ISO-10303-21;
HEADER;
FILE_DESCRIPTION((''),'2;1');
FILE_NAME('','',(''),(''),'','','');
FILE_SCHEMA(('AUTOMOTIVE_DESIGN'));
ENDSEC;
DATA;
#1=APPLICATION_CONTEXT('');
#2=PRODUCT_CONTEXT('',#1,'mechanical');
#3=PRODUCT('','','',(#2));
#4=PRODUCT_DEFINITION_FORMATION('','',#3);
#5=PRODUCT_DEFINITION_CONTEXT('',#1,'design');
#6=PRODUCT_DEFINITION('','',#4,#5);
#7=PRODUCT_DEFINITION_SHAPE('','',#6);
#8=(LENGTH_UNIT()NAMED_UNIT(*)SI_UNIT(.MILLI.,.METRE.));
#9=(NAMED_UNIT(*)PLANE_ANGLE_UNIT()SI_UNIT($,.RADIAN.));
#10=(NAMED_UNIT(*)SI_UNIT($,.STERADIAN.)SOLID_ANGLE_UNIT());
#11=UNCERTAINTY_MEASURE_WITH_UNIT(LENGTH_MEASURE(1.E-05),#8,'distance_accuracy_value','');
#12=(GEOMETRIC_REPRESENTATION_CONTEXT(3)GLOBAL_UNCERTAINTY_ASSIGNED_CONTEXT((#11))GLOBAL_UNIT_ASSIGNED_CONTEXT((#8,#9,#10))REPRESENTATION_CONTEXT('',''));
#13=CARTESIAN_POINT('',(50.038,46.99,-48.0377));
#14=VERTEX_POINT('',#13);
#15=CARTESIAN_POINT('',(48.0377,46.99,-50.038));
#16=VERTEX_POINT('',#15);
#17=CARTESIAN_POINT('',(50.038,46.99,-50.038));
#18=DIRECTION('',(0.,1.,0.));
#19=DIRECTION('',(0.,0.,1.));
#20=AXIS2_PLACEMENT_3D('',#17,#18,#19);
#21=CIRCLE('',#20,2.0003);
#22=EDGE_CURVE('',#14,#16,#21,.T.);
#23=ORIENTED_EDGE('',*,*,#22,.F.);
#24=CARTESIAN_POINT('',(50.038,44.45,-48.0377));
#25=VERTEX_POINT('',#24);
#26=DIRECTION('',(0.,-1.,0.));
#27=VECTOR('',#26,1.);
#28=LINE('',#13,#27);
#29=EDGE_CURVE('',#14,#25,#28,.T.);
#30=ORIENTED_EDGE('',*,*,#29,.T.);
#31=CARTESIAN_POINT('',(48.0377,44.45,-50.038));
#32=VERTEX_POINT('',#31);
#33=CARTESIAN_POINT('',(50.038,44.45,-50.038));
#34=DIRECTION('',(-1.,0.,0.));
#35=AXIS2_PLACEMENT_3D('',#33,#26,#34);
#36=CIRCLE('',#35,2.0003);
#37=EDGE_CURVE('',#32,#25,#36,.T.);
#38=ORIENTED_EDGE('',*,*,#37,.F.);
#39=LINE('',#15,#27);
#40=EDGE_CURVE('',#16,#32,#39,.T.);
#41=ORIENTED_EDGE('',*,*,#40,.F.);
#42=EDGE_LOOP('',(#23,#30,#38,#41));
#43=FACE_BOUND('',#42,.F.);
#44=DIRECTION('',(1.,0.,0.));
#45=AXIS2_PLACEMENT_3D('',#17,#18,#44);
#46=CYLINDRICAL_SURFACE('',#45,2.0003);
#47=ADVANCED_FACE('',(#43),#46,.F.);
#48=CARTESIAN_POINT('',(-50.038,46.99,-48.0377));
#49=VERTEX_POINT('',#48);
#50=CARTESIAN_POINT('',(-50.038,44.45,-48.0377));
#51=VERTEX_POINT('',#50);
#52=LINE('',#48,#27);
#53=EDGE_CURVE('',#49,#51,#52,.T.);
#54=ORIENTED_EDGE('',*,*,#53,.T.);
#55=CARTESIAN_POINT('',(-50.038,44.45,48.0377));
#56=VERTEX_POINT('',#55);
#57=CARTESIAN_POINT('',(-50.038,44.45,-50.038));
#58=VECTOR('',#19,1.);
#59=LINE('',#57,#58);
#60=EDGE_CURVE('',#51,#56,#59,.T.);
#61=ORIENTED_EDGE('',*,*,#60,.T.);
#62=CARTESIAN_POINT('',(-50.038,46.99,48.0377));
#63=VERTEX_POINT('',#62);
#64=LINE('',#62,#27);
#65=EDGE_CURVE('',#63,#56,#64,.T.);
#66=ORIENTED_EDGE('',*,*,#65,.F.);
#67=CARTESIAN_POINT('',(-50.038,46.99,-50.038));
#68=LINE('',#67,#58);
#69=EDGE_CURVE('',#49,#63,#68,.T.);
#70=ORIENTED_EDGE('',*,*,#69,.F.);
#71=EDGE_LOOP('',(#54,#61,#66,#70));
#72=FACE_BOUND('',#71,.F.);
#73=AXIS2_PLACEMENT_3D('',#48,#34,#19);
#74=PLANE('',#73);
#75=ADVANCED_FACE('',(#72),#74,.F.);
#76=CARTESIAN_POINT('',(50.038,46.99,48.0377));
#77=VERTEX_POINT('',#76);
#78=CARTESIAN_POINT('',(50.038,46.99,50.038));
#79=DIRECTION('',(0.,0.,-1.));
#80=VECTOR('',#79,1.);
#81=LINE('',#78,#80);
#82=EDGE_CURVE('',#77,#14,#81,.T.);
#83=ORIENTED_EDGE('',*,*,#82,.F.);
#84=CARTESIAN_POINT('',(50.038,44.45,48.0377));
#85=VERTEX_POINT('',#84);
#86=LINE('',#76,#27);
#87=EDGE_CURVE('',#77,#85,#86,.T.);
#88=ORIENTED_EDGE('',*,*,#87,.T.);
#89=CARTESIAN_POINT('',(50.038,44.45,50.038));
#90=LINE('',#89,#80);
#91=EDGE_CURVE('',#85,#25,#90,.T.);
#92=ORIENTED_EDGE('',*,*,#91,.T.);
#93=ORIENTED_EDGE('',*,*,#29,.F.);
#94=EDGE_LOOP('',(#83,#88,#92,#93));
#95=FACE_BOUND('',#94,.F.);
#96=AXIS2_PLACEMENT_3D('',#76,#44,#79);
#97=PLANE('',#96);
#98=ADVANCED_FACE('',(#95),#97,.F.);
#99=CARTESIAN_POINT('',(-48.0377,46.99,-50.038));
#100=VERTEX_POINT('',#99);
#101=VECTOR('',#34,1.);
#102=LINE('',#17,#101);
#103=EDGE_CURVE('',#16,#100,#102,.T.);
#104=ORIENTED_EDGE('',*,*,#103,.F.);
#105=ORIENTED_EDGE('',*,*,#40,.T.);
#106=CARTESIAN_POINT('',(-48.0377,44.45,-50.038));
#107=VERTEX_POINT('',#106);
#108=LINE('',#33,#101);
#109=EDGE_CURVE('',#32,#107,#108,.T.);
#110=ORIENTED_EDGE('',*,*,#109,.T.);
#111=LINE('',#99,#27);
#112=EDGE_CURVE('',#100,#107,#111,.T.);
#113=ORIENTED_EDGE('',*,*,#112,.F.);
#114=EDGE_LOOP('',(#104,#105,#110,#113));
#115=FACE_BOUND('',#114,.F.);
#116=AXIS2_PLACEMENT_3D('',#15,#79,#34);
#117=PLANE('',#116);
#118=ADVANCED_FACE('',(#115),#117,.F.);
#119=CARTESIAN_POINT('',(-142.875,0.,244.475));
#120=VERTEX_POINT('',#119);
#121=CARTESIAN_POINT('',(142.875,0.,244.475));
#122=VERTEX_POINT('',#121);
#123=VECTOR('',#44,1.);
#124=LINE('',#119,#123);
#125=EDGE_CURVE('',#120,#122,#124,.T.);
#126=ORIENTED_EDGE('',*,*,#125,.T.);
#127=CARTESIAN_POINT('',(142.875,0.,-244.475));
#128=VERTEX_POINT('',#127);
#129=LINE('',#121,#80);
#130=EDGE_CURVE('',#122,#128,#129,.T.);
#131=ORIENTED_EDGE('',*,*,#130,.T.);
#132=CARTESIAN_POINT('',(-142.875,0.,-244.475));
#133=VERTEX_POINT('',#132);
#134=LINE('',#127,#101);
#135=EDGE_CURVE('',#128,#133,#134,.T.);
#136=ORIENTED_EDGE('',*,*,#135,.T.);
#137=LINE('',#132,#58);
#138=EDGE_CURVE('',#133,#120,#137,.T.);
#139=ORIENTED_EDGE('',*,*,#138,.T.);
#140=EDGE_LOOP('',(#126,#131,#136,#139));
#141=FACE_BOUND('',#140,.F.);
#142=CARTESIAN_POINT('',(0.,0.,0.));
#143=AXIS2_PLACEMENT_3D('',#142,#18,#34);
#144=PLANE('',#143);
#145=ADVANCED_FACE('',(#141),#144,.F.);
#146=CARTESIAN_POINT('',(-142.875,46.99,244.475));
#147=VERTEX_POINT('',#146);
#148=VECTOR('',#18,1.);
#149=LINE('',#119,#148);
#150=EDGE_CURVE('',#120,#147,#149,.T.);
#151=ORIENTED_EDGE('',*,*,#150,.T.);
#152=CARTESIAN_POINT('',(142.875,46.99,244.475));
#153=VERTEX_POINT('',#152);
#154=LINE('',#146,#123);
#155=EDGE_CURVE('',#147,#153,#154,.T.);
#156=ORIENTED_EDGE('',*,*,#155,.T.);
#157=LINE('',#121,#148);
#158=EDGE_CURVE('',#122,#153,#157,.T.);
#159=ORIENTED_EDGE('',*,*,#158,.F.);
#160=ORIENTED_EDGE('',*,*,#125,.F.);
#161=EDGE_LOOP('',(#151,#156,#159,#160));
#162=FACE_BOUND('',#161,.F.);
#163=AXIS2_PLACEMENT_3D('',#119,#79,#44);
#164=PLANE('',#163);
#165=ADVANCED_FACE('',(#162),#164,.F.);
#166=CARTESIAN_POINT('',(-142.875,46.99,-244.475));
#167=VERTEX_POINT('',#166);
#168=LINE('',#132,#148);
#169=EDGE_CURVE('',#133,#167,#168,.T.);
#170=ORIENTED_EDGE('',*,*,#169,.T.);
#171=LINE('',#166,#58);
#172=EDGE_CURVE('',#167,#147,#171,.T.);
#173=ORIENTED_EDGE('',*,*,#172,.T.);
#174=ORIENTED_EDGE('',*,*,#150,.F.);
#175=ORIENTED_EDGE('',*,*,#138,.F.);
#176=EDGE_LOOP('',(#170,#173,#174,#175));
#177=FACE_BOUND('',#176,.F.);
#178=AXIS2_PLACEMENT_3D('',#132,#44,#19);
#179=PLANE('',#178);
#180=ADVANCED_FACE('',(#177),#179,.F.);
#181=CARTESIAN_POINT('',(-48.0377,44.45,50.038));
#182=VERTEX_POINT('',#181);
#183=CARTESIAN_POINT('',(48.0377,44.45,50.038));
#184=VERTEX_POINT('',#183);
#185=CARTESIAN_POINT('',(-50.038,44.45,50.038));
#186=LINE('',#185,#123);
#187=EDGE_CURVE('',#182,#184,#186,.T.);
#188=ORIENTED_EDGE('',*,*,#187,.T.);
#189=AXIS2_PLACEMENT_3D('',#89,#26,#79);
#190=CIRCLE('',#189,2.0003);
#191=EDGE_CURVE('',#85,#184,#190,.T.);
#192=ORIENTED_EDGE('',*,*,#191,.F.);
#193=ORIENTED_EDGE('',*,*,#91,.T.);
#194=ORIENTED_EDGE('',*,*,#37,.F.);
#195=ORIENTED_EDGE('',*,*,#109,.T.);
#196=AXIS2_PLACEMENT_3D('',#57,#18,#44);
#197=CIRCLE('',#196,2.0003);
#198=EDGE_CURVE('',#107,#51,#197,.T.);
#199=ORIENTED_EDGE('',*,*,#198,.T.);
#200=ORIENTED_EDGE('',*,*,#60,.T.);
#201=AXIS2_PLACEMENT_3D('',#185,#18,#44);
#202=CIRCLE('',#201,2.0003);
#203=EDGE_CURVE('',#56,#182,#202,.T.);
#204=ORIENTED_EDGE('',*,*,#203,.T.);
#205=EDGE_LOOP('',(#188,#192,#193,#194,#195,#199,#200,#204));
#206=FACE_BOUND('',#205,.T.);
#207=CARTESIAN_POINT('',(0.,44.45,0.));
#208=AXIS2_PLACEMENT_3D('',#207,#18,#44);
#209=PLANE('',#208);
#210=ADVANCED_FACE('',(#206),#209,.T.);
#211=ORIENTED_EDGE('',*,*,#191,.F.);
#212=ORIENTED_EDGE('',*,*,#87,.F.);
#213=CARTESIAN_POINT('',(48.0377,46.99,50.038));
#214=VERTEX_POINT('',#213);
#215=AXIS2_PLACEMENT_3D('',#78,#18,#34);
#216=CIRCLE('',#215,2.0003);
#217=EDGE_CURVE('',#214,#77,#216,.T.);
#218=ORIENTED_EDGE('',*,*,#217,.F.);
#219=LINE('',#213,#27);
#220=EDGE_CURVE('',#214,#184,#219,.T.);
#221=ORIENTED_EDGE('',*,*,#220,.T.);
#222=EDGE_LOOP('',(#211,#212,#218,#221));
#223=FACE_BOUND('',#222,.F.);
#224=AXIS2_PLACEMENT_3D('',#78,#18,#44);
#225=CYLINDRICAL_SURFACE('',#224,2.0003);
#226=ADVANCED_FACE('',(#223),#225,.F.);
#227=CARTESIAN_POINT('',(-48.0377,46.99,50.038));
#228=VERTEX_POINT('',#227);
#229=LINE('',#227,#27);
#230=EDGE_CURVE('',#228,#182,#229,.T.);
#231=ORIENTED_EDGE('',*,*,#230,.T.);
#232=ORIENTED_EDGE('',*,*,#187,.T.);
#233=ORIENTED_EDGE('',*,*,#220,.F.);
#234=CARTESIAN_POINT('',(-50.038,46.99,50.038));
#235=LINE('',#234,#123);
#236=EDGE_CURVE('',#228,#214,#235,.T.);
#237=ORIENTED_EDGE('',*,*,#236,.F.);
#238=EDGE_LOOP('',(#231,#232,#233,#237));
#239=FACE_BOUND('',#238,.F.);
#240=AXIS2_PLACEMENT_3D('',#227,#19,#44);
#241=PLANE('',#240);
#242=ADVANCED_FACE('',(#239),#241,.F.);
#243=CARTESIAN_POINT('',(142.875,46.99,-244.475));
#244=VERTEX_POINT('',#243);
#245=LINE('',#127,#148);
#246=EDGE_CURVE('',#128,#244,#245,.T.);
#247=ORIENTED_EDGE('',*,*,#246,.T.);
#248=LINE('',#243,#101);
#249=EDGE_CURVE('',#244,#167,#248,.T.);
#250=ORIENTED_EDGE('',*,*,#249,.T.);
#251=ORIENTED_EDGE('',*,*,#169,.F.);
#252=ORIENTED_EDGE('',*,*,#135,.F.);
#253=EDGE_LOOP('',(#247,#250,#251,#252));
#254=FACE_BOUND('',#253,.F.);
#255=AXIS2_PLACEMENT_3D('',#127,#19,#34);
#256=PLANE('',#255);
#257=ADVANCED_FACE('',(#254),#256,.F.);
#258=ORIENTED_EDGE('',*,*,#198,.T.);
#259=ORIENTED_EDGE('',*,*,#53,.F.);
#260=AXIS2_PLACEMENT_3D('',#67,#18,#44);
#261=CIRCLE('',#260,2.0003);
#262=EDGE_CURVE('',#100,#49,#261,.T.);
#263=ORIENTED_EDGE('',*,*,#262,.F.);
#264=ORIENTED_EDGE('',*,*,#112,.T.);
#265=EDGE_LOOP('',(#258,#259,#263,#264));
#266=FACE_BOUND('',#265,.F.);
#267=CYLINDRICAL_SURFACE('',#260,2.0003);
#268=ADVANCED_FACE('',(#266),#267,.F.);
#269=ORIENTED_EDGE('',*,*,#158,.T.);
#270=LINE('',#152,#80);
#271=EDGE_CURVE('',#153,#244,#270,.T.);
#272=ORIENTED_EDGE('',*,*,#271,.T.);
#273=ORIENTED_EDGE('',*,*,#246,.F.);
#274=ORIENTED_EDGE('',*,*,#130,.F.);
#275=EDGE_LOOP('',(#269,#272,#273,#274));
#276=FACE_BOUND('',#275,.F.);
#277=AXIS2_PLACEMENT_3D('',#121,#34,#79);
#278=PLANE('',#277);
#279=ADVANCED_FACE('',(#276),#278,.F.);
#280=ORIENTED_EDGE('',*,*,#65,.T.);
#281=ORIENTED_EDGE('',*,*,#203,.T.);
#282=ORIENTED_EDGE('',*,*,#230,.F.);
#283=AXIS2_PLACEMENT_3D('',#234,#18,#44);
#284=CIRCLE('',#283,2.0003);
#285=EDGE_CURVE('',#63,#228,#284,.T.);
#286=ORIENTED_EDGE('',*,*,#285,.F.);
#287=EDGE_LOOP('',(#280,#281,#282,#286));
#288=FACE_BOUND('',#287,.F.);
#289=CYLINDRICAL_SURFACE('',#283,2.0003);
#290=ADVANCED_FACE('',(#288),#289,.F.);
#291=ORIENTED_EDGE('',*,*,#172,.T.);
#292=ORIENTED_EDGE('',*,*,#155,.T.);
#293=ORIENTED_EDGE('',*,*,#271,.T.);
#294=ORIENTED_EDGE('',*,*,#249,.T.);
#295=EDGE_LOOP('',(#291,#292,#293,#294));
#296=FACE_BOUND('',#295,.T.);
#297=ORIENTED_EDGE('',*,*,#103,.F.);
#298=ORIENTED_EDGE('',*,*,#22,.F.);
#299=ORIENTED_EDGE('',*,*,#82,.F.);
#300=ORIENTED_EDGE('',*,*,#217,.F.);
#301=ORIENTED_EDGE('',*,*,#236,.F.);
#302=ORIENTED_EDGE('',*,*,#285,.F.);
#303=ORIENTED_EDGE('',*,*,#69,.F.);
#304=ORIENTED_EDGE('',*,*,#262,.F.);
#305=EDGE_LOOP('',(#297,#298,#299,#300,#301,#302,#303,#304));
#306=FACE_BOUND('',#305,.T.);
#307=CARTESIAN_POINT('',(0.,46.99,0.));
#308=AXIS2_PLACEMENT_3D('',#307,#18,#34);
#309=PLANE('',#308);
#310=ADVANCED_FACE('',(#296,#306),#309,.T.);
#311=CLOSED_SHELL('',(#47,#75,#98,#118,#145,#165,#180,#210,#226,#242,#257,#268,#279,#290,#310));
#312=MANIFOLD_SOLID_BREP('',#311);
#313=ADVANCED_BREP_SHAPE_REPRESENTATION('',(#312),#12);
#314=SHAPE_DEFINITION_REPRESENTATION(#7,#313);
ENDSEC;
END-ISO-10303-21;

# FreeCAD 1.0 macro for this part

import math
import FreeCAD as App
import Part
import Sketcher
from FreeCAD import Vector
Q = App.Units.Quantity


def add_polygon(sketch, points):
    """Adds a closed chain of lines whose ends are joined by coincident constraints."""
    first, n = sketch.GeometryCount, len(points)
    for a, b in zip(points, points[1:] + points[:1]):
        sketch.addGeometry(Part.LineSegment(App.Vector(*a, 0), App.Vector(*b, 0)), False)
    for i in range(n):
        sketch.addConstraint(Sketcher.Constraint("Coincident", first + i, 2, first + (i + 1) % n, 1))

doc = App.newDocument("Part")
params = doc.addObject("Spreadsheet::Sheet", "Params")
for row, (alias, value) in enumerate([
    ("sketch1_width", "11.25 in"),
    ("sketch1_height", "19.25 in"),
    ("pad1_length", "1.85 in"),
    ("pocket1_length", "0.1 in"),
], start=1):
    params.set(f"A{row}", alias)
    params.set(f"B{row}", "=" + value)
    params.setAlias(f"B{row}", alias)

body = doc.addObject("PartDesign::Body", "Body")

sketch1 = body.newObject("Sketcher::SketchObject", "Sketch")
sketch1.AttachmentSupport = (doc.getObject("XZ_Plane"), [""])
sketch1.MapMode = "FlatFace"
add_polygon(sketch1, [(-143, -244), (-143, 244), (143, 244), (143, -244)])
sketch1.addConstraint([
    Sketcher.Constraint("Vertical", 0),
    Sketcher.Constraint("Horizontal", 1),
    Sketcher.Constraint("Vertical", 2),
    Sketcher.Constraint("Horizontal", 3),
    Sketcher.Constraint("Symmetric", 0, 2, 2, 2, -1, 1),
    Sketcher.Constraint("DistanceX", 1, 1, 1, 2, Q("11.25 in")),
    Sketcher.Constraint("DistanceY", 0, 1, 0, 2, Q("19.25 in")),
])
sketch1.setExpression("Constraints[9]", "Params.sketch1_width")
sketch1.setExpression("Constraints[10]", "Params.sketch1_height")
pad1 = body.newObject("PartDesign::Pad", "Pad")
pad1.Profile = sketch1
pad1.setExpression("Length", "Params.pad1_length")
pad1.Reversed = True

sketch2 = body.newObject("Sketcher::SketchObject", "Sketch001")
sketch2.AttachmentSupport = (doc.getObject("XZ_Plane"), [""])
sketch2.MapMode = "FlatFace"
sketch2.AttachmentOffset = App.Placement(Vector(0, 0, -1.85 * 25.4), App.Rotation())
sketch2.addGeometry([
    Part.ArcOfCircle(Part.Circle(Vector(-50, 50, 0), Vector(0, 0, 1), 2), math.radians(0), math.radians(270)),
    Part.LineSegment(Vector(-48, 50, 0), Vector(48, 50, 0)),
    Part.ArcOfCircle(Part.Circle(Vector(50, 50, 0), Vector(0, 0, 1), 2), math.radians(-90), math.radians(180)),
    Part.LineSegment(Vector(50, 48, 0), Vector(50, -48, 0)),
    Part.ArcOfCircle(Part.Circle(Vector(50, -50, 0), Vector(0, 0, 1), 2), math.radians(180), math.radians(450)),
    Part.LineSegment(Vector(48, -50, 0), Vector(-48, -50, 0)),
    Part.ArcOfCircle(Part.Circle(Vector(-50, -50, 0), Vector(0, 0, 1), 2), math.radians(90), math.radians(360)),
    Part.LineSegment(Vector(-50, -48, 0), Vector(-50, 48, 0)),
], False)
sketch2.addConstraint([
    Sketcher.Constraint("Coincident", 0, 1, 1, 1),
    Sketcher.Constraint("Coincident", 1, 2, 2, 2),
    Sketcher.Constraint("Coincident", 2, 1, 3, 1),
    Sketcher.Constraint("Coincident", 3, 2, 4, 2),
    Sketcher.Constraint("Coincident", 4, 1, 5, 1),
    Sketcher.Constraint("Coincident", 5, 2, 6, 2),
    Sketcher.Constraint("Coincident", 6, 1, 7, 1),
    Sketcher.Constraint("Coincident", 7, 2, 0, 2),
    Sketcher.Constraint("Horizontal", 1),
    Sketcher.Constraint("Vertical", 3),
    Sketcher.Constraint("Horizontal", 5),
    Sketcher.Constraint("Vertical", 7),
    Sketcher.Constraint("Equal", 0, 2),
    Sketcher.Constraint("Equal", 2, 4),
    Sketcher.Constraint("Equal", 4, 6),
    Sketcher.Constraint("Symmetric", 0, 3, 4, 3, -1, 1),
    Sketcher.Constraint("Symmetric", 2, 3, 6, 3, -1, 1),
    Sketcher.Constraint("Symmetric", 0, 3, 2, 3, -2),
    Sketcher.Constraint("Horizontal", 2, 3, 0, 1),
    Sketcher.Constraint("Horizontal", 6, 3, 4, 1),
    Sketcher.Constraint("Vertical", 4, 3, 2, 1),
    Sketcher.Constraint("Vertical", 0, 3, 6, 1),
    Sketcher.Constraint("Equal", 5, 3),
    Sketcher.Constraint("Radius", 0, Q("2.0003 mm")),
    Sketcher.Constraint("DistanceX", 0, 3, 2, 3, Q("3.94 in")),
])
pocket1 = body.newObject("PartDesign::Pocket", "Pocket")
pocket1.Profile = sketch2
pocket1.setExpression("Length", "Params.pocket1_length")
pocket1.Reversed = True

doc.recompute()
